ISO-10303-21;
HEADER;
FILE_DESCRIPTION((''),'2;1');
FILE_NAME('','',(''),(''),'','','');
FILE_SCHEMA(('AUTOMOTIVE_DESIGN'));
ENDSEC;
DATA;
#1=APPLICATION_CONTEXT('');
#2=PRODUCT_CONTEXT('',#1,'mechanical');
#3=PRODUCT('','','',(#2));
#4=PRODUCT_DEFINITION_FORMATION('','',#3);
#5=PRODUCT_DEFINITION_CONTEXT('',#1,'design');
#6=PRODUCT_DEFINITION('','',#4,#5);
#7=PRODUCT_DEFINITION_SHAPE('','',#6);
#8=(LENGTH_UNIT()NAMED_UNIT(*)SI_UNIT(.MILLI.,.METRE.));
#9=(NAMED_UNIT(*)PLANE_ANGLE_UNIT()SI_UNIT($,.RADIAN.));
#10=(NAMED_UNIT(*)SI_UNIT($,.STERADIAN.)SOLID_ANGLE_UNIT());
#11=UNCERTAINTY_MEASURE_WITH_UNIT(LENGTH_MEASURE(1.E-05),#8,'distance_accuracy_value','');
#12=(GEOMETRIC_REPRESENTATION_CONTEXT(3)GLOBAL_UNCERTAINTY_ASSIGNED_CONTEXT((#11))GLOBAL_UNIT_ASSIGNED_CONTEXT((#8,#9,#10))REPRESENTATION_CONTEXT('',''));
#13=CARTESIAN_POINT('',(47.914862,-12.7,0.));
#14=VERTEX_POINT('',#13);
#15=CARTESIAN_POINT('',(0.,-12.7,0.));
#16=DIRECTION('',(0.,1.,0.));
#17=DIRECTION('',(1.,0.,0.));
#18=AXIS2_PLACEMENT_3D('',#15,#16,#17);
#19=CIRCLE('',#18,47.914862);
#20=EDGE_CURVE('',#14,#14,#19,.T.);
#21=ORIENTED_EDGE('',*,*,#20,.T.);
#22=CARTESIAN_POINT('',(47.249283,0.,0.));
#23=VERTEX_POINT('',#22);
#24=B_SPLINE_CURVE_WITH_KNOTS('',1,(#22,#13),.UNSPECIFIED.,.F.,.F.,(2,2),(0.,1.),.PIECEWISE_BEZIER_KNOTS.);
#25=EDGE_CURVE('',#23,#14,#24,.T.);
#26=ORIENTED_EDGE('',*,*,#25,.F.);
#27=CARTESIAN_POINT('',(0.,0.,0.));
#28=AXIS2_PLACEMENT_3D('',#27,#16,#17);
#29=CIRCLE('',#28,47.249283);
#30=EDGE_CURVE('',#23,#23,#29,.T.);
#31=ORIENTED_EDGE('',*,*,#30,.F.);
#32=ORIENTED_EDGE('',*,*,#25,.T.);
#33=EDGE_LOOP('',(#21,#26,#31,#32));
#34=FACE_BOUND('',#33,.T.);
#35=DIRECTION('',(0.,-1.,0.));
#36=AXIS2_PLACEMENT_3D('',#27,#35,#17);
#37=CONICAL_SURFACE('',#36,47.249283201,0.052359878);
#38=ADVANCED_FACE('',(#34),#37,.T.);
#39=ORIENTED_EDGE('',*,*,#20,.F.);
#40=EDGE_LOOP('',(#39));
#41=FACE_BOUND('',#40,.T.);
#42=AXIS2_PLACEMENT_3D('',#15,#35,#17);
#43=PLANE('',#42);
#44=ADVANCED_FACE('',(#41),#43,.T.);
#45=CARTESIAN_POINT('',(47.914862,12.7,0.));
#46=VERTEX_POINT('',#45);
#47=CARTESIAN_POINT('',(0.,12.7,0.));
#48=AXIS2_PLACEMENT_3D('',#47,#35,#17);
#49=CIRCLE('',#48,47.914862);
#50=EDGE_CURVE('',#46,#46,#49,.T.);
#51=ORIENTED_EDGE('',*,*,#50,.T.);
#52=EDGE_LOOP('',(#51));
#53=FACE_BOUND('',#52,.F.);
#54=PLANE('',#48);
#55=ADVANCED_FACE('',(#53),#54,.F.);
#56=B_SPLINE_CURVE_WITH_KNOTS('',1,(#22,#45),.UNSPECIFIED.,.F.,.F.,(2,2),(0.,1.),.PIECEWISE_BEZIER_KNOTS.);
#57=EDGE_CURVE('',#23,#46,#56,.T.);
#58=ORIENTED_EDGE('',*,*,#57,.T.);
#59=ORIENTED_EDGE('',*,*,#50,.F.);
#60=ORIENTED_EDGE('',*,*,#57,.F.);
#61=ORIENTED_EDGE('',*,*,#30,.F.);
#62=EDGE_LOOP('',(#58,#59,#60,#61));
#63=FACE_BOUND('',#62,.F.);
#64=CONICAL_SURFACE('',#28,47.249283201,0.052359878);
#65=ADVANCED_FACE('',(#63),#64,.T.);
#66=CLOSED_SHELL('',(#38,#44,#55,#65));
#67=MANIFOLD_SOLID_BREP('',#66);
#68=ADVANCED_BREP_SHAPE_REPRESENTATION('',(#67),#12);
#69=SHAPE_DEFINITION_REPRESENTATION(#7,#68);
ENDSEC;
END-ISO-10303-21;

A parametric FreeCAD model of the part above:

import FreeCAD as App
import Part
import Sketcher
Q = App.Units.Quantity

doc = App.newDocument("Part")
body = doc.addObject("PartDesign::Body", "Body")

sketch1 = doc.addObject("Sketcher::SketchObject", "Sketch")
body.addObject(sketch1)
sketch1.AttachmentSupport = (doc.XZ_Plane, [""])
sketch1.MapMode = "FlatFace"
sketch1.addGeometry(Part.Circle(App.Vector(0, 0, 0), App.Vector(0, 0, 1), 47), False)
sketch1.addConstraint(Sketcher.Constraint("Coincident", 0, 3, -1, 1))
sketch1.addConstraint(Sketcher.Constraint("Diameter", 0, 94.498566))
pad1 = doc.addObject("PartDesign::Pad", "Pad")
body.addObject(pad1)
pad1.Profile = sketch1
pad1.Length = Q("1 in")
pad1.Midplane = True
pad1.TaperAngle = 3

doc.recompute()
